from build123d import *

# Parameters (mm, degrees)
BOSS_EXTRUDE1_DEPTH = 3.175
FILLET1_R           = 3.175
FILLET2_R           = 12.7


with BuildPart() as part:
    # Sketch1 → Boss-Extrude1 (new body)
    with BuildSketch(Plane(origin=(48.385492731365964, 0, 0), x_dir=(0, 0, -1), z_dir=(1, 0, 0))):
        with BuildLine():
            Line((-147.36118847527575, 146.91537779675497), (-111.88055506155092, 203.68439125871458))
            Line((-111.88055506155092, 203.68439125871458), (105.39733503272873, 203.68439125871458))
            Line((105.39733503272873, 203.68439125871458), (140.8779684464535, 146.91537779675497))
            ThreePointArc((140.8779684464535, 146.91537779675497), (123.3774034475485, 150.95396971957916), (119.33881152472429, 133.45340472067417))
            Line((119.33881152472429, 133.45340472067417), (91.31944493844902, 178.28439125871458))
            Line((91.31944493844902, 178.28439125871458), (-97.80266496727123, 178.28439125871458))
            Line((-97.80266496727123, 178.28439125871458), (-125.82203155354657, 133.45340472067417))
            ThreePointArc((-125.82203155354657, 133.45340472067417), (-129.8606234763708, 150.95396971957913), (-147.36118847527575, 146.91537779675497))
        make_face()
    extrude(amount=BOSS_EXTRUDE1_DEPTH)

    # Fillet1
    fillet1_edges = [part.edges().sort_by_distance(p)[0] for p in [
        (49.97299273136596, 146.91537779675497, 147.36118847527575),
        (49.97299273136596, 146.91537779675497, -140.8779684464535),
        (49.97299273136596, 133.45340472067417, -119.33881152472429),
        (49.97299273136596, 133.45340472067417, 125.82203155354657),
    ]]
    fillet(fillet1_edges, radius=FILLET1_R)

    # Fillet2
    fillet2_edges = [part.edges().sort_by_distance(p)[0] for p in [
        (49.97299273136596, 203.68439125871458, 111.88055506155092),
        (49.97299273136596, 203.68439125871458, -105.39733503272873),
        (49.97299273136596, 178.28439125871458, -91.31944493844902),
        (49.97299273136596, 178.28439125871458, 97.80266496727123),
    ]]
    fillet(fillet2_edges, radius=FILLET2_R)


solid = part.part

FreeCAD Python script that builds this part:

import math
import FreeCAD as App
import Part
import Sketcher
from FreeCAD import Vector
Q = App.Units.Quantity


def edges_at(feature, points):
    """Names of the edges that pass closest to the given points."""
    edges = feature.Shape.Edges
    near = lambda p: min(range(len(edges)), key=lambda i: edges[i].distToShape(Part.Vertex(*p))[0])
    return sorted({f"Edge{near(p) + 1}" for p in points})

doc = App.newDocument("Part")
body = doc.addObject("PartDesign::Body", "Body")

# Sketch on YZ plane
sketch1 = body.newObject("Sketcher::SketchObject", "Sketch")
sketch1.AttachmentSupport = (doc.getObject("YZ_Plane"), [""])
sketch1.MapMode = "FlatFace"
sketch1.AttachmentOffset = App.Placement(Vector(0, 0, 48.385493), App.Rotation())
sketch1.addGeometry([
    Part.LineSegment(Vector(204, 112, 0), Vector(147, 147, 0)),  # 0
    Part.ArcOfCircle(Part.Circle(Vector(140, 137, 0), Vector(0, 0, 1), 13), math.radians(-122), math.radians(58)),  # 1
    Part.LineSegment(Vector(133, 126, 0), Vector(178, 98, 0)),  # 2
    Part.LineSegment(Vector(178, 98, 0), Vector(178, -91, 0)),  # 3
    Part.LineSegment(Vector(178, -91, 0), Vector(133, -119, 0)),  # 4
    Part.ArcOfCircle(Part.Circle(Vector(140, -130, 0), Vector(0, 0, 1), 13), math.radians(-58), math.radians(122)),  # 5
    Part.LineSegment(Vector(147, -141, 0), Vector(204, -105, 0)),  # 6
    Part.LineSegment(Vector(204, -105, 0), Vector(204, 112, 0)),  # 7
], False)
sketch1.addConstraint([
    Sketcher.Constraint("Tangent", 0, 2, 1, 2),
    Sketcher.Constraint("Tangent", 1, 1, 2, 1),
    Sketcher.Constraint("Coincident", 2, 2, 3, 1),
    Sketcher.Constraint("Coincident", 3, 2, 4, 1),
    Sketcher.Constraint("Tangent", 4, 2, 5, 2),
    Sketcher.Constraint("Tangent", 5, 1, 6, 1),
    Sketcher.Constraint("Coincident", 6, 2, 7, 1),
    Sketcher.Constraint("Coincident", 7, 2, 0, 1),
    Sketcher.Constraint("Vertical", 3),
    Sketcher.Constraint("Vertical", 7),
    Sketcher.Constraint("Equal", 1, 5),
    Sketcher.Constraint("Parallel", 0, 2),
    Sketcher.Constraint("Parallel", 4, 6),
    Sketcher.Constraint("Vertical", 1, 3, 5, 3),
    Sketcher.Constraint("Vertical", 1, 1, 4, 2),
    Sketcher.Constraint("Radius", 1, Q("0.5 in")),
    Sketcher.Constraint("DistanceX", 3, 2, 6, 2, Q("1 in")),
    Sketcher.Constraint("DistanceY", 6, 2, 2, 2, Q("8 in")),
    Sketcher.Constraint("DistanceY", 5, 3, 1, 3, Q("10.5 in")),
    Sketcher.Constraint("DistanceX", 1, 3, 2, 2, Q("1.5 in")),
    Sketcher.Constraint("DistanceX", -1, 1, 1, 3, Q("140.184391 mm")),
    Sketcher.Constraint("DistanceY", -1, 1, 1, 3, Q("136.59161 mm")),
])
pad1 = body.newObject("PartDesign::Pad", "Pad")
pad1.Profile = sketch1
pad1.Length = Q("0.125 in")
doc.recompute()

fillet = body.newObject("PartDesign::Fillet", "Fillet")
fillet.Base = (pad1, edges_at(pad1, [
    (49.973, 146.915, 147.361),
    (49.973, 146.915, -140.878),
    (49.973, 133.453, -119.339),
    (49.973, 133.453, 125.822),
]))
fillet.Radius = Q("0.125 in")
doc.recompute()

fillet2 = body.newObject("PartDesign::Fillet", "Fillet001")
fillet2.Base = (fillet, edges_at(fillet, [
    (49.973, 203.684, 111.881),
    (49.973, 203.684, -105.397),
    (49.973, 178.284, -91.319),
    (49.973, 178.284, 97.803),
]))
fillet2.Radius = Q("0.5 in")

doc.recompute()
